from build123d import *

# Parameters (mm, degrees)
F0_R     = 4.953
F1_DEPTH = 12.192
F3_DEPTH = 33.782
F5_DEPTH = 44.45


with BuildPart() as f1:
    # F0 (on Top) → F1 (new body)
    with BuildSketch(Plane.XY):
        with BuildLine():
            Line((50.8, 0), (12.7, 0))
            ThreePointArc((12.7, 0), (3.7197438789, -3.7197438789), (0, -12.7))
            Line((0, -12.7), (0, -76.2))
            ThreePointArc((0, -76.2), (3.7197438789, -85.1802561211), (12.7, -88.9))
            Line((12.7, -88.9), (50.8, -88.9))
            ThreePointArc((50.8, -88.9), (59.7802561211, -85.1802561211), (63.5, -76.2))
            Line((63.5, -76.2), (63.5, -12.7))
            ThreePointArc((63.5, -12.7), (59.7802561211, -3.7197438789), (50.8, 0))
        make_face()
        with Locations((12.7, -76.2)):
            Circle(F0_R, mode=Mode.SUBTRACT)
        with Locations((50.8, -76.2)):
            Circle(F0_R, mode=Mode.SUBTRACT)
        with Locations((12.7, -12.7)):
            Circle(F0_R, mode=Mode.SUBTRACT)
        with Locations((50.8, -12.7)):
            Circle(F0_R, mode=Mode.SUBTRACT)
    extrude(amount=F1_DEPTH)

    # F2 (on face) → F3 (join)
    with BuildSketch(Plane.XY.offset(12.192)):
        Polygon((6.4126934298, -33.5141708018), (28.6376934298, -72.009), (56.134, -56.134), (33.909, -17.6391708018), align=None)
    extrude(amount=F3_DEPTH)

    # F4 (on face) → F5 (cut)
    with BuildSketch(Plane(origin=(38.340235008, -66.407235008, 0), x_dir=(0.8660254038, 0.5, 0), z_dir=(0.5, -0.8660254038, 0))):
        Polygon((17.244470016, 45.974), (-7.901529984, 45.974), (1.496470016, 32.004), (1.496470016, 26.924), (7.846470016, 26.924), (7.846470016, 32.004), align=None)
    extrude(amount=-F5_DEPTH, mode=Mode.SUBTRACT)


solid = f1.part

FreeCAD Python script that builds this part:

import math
import FreeCAD as App
import Part
import Sketcher
from FreeCAD import Vector
Q = App.Units.Quantity

doc = App.newDocument("Part")
body = doc.addObject("PartDesign::Body", "Body")

# Sketch on XY plane
sketch1 = doc.addObject("Sketcher::SketchObject", "Sketch")
body.addObject(sketch1)
sketch1.AttachmentSupport = (doc.XY_Plane, [""])
sketch1.MapMode = "FlatFace"
sketch1.addGeometry(Part.LineSegment(Vector(50.8, 0, 0), Vector(12.7, 0, 0)), False)
sketch1.addGeometry(Part.ArcOfCircle(Part.Circle(Vector(12.7, -12.7, 0), Vector(0, 0, 1), 12.7), math.radians(90), math.radians(180)), False)
sketch1.addGeometry(Part.LineSegment(Vector(0, -12.7, 0), Vector(0, -76.2, 0)), False)
sketch1.addGeometry(Part.ArcOfCircle(Part.Circle(Vector(12.7, -76.2, 0), Vector(0, 0, 1), 12.7), math.radians(180), math.radians(270)), False)
sketch1.addGeometry(Part.LineSegment(Vector(12.7, -88.9, 0), Vector(50.8, -88.9, 0)), False)
sketch1.addGeometry(Part.ArcOfCircle(Part.Circle(Vector(50.8, -76.2, 0), Vector(0, 0, 1), 12.7), math.radians(-90), math.radians(0)), False)
sketch1.addGeometry(Part.LineSegment(Vector(63.5, -76.2, 0), Vector(63.5, -12.7, 0)), False)
sketch1.addGeometry(Part.ArcOfCircle(Part.Circle(Vector(50.8, -12.7, 0), Vector(0, 0, 1), 12.7), math.radians(0), math.radians(90)), False)
sketch1.addGeometry(Part.Circle(Vector(12.7, -76.2, 0), Vector(0, 0, 1), 4.953), False)
sketch1.addGeometry(Part.Circle(Vector(50.8, -76.2, 0), Vector(0, 0, 1), 4.953), False)
sketch1.addGeometry(Part.Circle(Vector(12.7, -12.7, 0), Vector(0, 0, 1), 4.953), False)
sketch1.addGeometry(Part.Circle(Vector(50.8, -12.7, 0), Vector(0, 0, 1), 4.953), False)
sketch1.addConstraint(Sketcher.Constraint("Tangent", 0, 2, 1, 1))
sketch1.addConstraint(Sketcher.Constraint("Tangent", 1, 2, 2, 1))
sketch1.addConstraint(Sketcher.Constraint("Tangent", 2, 2, 3, 1))
sketch1.addConstraint(Sketcher.Constraint("Tangent", 3, 2, 4, 1))
sketch1.addConstraint(Sketcher.Constraint("Tangent", 4, 2, 5, 1))
sketch1.addConstraint(Sketcher.Constraint("Tangent", 5, 2, 6, 1))
sketch1.addConstraint(Sketcher.Constraint("Tangent", 6, 2, 7, 1))
sketch1.addConstraint(Sketcher.Constraint("Tangent", 7, 2, 0, 1))
sketch1.addConstraint(Sketcher.Constraint("Horizontal", 0))
sketch1.addConstraint(Sketcher.Constraint("Vertical", 2))
sketch1.addConstraint(Sketcher.Constraint("Horizontal", 4))
sketch1.addConstraint(Sketcher.Constraint("Vertical", 6))
sketch1.addConstraint(Sketcher.Constraint("Coincident", 8, 3, 3, 3))
sketch1.addConstraint(Sketcher.Constraint("Coincident", 9, 3, 5, 3))
sketch1.addConstraint(Sketcher.Constraint("Coincident", 10, 3, 1, 3))
sketch1.addConstraint(Sketcher.Constraint("Coincident", 11, 3, 7, 3))
sketch1.addConstraint(Sketcher.Constraint("Equal", 1, 3))
sketch1.addConstraint(Sketcher.Constraint("Equal", 3, 5))
sketch1.addConstraint(Sketcher.Constraint("Equal", 5, 7))
sketch1.addConstraint(Sketcher.Constraint("Equal", 8, 9))
sketch1.addConstraint(Sketcher.Constraint("Equal", 9, 10))
sketch1.addConstraint(Sketcher.Constraint("Equal", 10, 11))
sketch1.addConstraint(Sketcher.Constraint("PointOnObject", 0, 2, -1))
sketch1.addConstraint(Sketcher.Constraint("PointOnObject", 1, 2, -2))
sketch1.addConstraint(Sketcher.Constraint("Radius", 1, Q("0.5 in")))
sketch1.addConstraint(Sketcher.Constraint("Diameter", 8, Q("0.39 in")))
sketch1.addConstraint(Sketcher.Constraint("DistanceX", 0, 2, 0, 1, Q("1.5 in")))
sketch1.addConstraint(Sketcher.Constraint("DistanceY", 2, 2, 2, 1, Q("2.5 in")))
pad1 = doc.addObject("PartDesign::Pad", "Pad")
body.addObject(pad1)
pad1.Profile = sketch1
pad1.Length = Q("0.48 in")

# Sketch on XY plane
sketch2 = doc.addObject("Sketcher::SketchObject", "Sketch001")
body.addObject(sketch2)
sketch2.AttachmentSupport = (doc.XY_Plane, [""])
sketch2.MapMode = "FlatFace"
sketch2.AttachmentOffset = App.Placement(Vector(0, 0, 0.48 * 25.4), App.Rotation())
sketch2.addGeometry(Part.LineSegment(Vector(6.412693, -33.514171, 0), Vector(28.637693, -72.009, 0)), False)
sketch2.addGeometry(Part.LineSegment(Vector(28.637693, -72.009, 0), Vector(56.134, -56.134, 0)), False)
sketch2.addGeometry(Part.LineSegment(Vector(56.134, -56.134, 0), Vector(33.909, -17.639171, 0)), False)
sketch2.addGeometry(Part.LineSegment(Vector(33.909, -17.639171, 0), Vector(6.412693, -33.514171, 0)), False)
sketch2.addConstraint(Sketcher.Constraint("Coincident", 0, 2, 1, 1))
sketch2.addConstraint(Sketcher.Constraint("Coincident", 1, 2, 2, 1))
sketch2.addConstraint(Sketcher.Constraint("Coincident", 2, 2, 3, 1))
sketch2.addConstraint(Sketcher.Constraint("Coincident", 3, 2, 0, 1))
sketch2.addConstraint(Sketcher.Constraint("Perpendicular", 0, 1))
sketch2.addConstraint(Sketcher.Constraint("Perpendicular", 1, 2))
sketch2.addConstraint(Sketcher.Constraint("Perpendicular", 2, 3))
sketch2.addConstraint(Sketcher.Constraint("Angle", 0, Q("-60 deg")))
sketch2.addConstraint(Sketcher.Constraint("Distance", 0, Q("1.75 in")))
sketch2.addConstraint(Sketcher.Constraint("Distance", 1, Q("1.25 in")))
sketch2.addConstraint(Sketcher.Constraint("DistanceX", -1, 1, 1, 2, Q("2.21 in")))
sketch2.addConstraint(Sketcher.Constraint("DistanceY", 1, 2, -1, 1, Q("2.21 in")))
pad2 = doc.addObject("PartDesign::Pad", "Pad001")
body.addObject(pad2)
pad2.Profile = sketch2
pad2.Length = Q("1.33 in")

# Sketch on an angled plane
sketch3 = doc.addObject("Sketcher::SketchObject", "Sketch002")
body.addObject(sketch3)
sketch3.Placement = App.Placement(Vector(38.340235, -66.407235, 0), App.Rotation(Vector(0.866025404, 0.5, 0), Vector(0, 0, 1), Vector(0.5, -0.866025404, 0), "ZXY"))
sketch3.addGeometry(Part.LineSegment(Vector(17.24447, 45.974, 0), Vector(-7.90153, 45.974, 0)), False)
sketch3.addGeometry(Part.LineSegment(Vector(-7.90153, 45.974, 0), Vector(1.49647, 32.004, 0)), False)
sketch3.addGeometry(Part.LineSegment(Vector(1.49647, 32.004, 0), Vector(1.49647, 26.924, 0)), False)
sketch3.addGeometry(Part.LineSegment(Vector(1.49647, 26.924, 0), Vector(7.84647, 26.924, 0)), False)
sketch3.addGeometry(Part.LineSegment(Vector(7.84647, 26.924, 0), Vector(7.84647, 32.004, 0)), False)
sketch3.addGeometry(Part.LineSegment(Vector(7.84647, 32.004, 0), Vector(17.24447, 45.974, 0)), False)
sketch3.addConstraint(Sketcher.Constraint("Coincident", 0, 2, 1, 1))
sketch3.addConstraint(Sketcher.Constraint("Coincident", 1, 2, 2, 1))
sketch3.addConstraint(Sketcher.Constraint("Coincident", 2, 2, 3, 1))
sketch3.addConstraint(Sketcher.Constraint("Coincident", 3, 2, 4, 1))
sketch3.addConstraint(Sketcher.Constraint("Coincident", 4, 2, 5, 1))
sketch3.addConstraint(Sketcher.Constraint("Coincident", 5, 2, 0, 1))
sketch3.addConstraint(Sketcher.Constraint("Horizontal", 0))
sketch3.addConstraint(Sketcher.Constraint("Vertical", 2))
sketch3.addConstraint(Sketcher.Constraint("Horizontal", 3))
sketch3.addConstraint(Sketcher.Constraint("Vertical", 4))
sketch3.addConstraint(Sketcher.Constraint("Horizontal", 1, 2, 4, 2))
sketch3.addConstraint(Sketcher.Constraint("Equal", 1, 5))
sketch3.addConstraint(Sketcher.Constraint("DistanceY", 2, 2, 2, 1, Q("0.2 in")))
sketch3.addConstraint(Sketcher.Constraint("DistanceX", 0, 2, 0, 1, Q("0.99 in")))
sketch3.addConstraint(Sketcher.Constraint("DistanceX", 3, 1, 3, 2, Q("0.25 in")))
sketch3.addConstraint(Sketcher.Constraint("DistanceY", -1, 1, 0, 2, Q("1.81 in")))
sketch3.addConstraint(Sketcher.Constraint("DistanceY", -1, 1, 1, 2, Q("1.26 in")))
sketch3.addConstraint(Sketcher.Constraint("DistanceX", 0, 2, -1, 1, 7.90153))
pocket1 = doc.addObject("PartDesign::Pocket", "Pocket")
body.addObject(pocket1)
pocket1.Profile = sketch3
pocket1.Length = Q("1.75 in")

doc.recompute()
